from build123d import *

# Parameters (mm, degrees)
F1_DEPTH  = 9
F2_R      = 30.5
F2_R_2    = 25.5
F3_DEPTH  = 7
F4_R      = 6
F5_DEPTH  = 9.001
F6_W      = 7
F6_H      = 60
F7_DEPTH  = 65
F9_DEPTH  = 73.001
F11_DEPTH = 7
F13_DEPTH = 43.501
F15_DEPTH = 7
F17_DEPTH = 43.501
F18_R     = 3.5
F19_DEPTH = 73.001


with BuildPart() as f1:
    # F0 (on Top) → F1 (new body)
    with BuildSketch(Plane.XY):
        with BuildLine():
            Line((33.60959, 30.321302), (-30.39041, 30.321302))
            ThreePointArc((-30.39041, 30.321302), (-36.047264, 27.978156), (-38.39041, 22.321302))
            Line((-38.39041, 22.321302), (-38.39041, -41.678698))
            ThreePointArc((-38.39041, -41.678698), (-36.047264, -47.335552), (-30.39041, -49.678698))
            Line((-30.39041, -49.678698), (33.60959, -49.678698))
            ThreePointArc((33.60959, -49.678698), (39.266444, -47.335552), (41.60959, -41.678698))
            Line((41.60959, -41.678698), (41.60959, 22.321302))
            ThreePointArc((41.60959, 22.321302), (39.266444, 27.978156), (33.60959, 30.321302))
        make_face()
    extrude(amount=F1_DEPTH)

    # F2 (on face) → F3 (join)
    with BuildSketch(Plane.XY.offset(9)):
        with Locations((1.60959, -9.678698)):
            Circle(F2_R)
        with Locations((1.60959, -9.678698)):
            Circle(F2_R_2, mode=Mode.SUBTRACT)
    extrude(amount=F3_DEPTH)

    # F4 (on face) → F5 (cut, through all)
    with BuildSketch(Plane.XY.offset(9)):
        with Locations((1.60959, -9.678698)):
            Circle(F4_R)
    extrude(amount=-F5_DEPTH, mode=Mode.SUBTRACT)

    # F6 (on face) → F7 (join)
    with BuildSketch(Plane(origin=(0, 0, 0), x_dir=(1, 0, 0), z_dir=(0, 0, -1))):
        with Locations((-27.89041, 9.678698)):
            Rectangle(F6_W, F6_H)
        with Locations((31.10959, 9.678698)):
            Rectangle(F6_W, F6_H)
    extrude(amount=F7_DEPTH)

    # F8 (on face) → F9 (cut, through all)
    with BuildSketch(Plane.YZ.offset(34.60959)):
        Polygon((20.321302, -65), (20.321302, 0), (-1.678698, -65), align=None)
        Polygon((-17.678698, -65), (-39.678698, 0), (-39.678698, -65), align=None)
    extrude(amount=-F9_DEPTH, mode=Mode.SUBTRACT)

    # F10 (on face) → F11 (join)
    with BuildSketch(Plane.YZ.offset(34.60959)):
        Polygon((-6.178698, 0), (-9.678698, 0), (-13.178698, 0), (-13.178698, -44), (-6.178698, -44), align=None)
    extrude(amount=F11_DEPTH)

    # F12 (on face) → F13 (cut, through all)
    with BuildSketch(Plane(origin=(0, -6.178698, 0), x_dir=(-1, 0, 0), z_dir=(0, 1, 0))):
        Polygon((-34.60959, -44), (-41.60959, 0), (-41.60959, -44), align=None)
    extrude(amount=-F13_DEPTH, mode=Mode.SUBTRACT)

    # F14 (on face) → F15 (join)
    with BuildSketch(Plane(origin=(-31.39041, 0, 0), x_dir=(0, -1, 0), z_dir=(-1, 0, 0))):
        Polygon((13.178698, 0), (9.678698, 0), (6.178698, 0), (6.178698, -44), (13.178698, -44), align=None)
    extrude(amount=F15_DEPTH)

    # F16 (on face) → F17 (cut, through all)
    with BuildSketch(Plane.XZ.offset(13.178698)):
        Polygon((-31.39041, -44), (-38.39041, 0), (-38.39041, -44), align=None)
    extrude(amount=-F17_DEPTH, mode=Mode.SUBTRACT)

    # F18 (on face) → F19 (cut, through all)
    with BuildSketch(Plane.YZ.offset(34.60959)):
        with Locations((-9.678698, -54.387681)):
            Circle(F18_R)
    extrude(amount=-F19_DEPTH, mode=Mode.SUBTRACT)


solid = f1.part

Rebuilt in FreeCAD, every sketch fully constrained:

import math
import FreeCAD as App
import Part
import Sketcher

V = App.Vector

doc = App.newDocument("Part")
body = doc.addObject("PartDesign::Body", "Body")

sketch1 = body.newObject("Sketcher::SketchObject", "Sketch")
sketch1.AttachmentSupport = (doc.getObject("XY_Plane"), [""])
sketch1.MapMode = "FlatFace"
sketch1.addGeometry([
    Part.LineSegment(V(34, 30, 0), V(-30, 30, 0)),
    Part.ArcOfCircle(Part.Circle(V(-30, 22, 0), V(0, 0, 1), 8), math.radians(90), math.radians(180)),
    Part.LineSegment(V(-38, 22, 0), V(-38, -42, 0)),
    Part.ArcOfCircle(Part.Circle(V(-30, -42, 0), V(0, 0, 1), 8), math.radians(-180), math.radians(-90)),
    Part.LineSegment(V(-30, -50, 0), V(34, -50, 0)),
    Part.ArcOfCircle(Part.Circle(V(34, -42, 0), V(0, 0, 1), 8), math.radians(-90), math.radians(0)),
    Part.LineSegment(V(42, -42, 0), V(42, 22, 0)),
    Part.ArcOfCircle(Part.Circle(V(34, 22, 0), V(0, 0, 1), 8), math.radians(0), math.radians(90)),
], False)
sketch1.addConstraint([
    Sketcher.Constraint("Tangent", 0, 2, 1, 1),
    Sketcher.Constraint("Tangent", 1, 2, 2, 1),
    Sketcher.Constraint("Tangent", 2, 2, 3, 1),
    Sketcher.Constraint("Tangent", 3, 2, 4, 1),
    Sketcher.Constraint("Tangent", 4, 2, 5, 1),
    Sketcher.Constraint("Tangent", 5, 2, 6, 1),
    Sketcher.Constraint("Tangent", 6, 2, 7, 1),
    Sketcher.Constraint("Tangent", 7, 2, 0, 1),
    Sketcher.Constraint("Horizontal", 0),
    Sketcher.Constraint("Vertical", 2),
    Sketcher.Constraint("Horizontal", 4),
    Sketcher.Constraint("Vertical", 6),
    Sketcher.Constraint("Equal", 1, 3),
    Sketcher.Constraint("Equal", 3, 5),
    Sketcher.Constraint("Equal", 5, 7),
    Sketcher.Constraint("Equal", 4, 2),
    Sketcher.Constraint("Radius", 1, 8.000001),
    Sketcher.Constraint("DistanceX", 0, 2, 0, 1, 64.0),
    Sketcher.Constraint("DistanceY", -1, 1, 1, 3, 22.321301),
    Sketcher.Constraint("DistanceX", 1, 3, -1, 1, 30.390409),
])
pad1 = body.newObject("PartDesign::Pad", "Pad")
pad1.Profile = sketch1
pad1.Length = 9

sketch2 = body.newObject("Sketcher::SketchObject", "Sketch001")
sketch2.AttachmentSupport = (doc.getObject("XY_Plane"), [""])
sketch2.MapMode = "FlatFace"
sketch2.AttachmentOffset = App.Placement(V(0, 0, 9), App.Rotation())
sketch2.addGeometry([
    Part.Circle(V(2, -10, 0), V(0, 0, 1), 30),
    Part.Circle(V(2, -10, 0), V(0, 0, 1), 26),
], False)
sketch2.addConstraint([
    Sketcher.Constraint("Coincident", 1, 3, 0, 3),
    Sketcher.Constraint("Diameter", 0, 61.0),
    Sketcher.Constraint("Diameter", 1, 51.0),
    Sketcher.Constraint("DistanceY", 0, 3, -1, 1, 9.678698),
    Sketcher.Constraint("DistanceX", -1, 1, 0, 3, 1.60959),
])
pad2 = body.newObject("PartDesign::Pad", "Pad001")
pad2.Profile = sketch2
pad2.Length = 7

sketch3 = body.newObject("Sketcher::SketchObject", "Sketch002")
sketch3.AttachmentSupport = (doc.getObject("XY_Plane"), [""])
sketch3.MapMode = "FlatFace"
sketch3.AttachmentOffset = App.Placement(V(0, 0, 9), App.Rotation())
sketch3.addGeometry(Part.Circle(V(2, -10, 0), V(0, 0, 1), 6), False)
sketch3.addConstraint([
    Sketcher.Constraint("Diameter", 0, 12.0),
    Sketcher.Constraint("DistanceY", 0, 3, -1, 1, 9.678698),
    Sketcher.Constraint("DistanceX", -1, 1, 0, 3, 1.60959),
])
pocket1 = body.newObject("PartDesign::Pocket", "Pocket")
pocket1.Profile = sketch3
pocket1.Type = "ThroughAll"

sketch4 = body.newObject("Sketcher::SketchObject", "Sketch003")
sketch4.AttachmentSupport = (doc.getObject("XY_Plane"), [""])
sketch4.MapMode = "FlatFace"
sketch4.addGeometry([
    Part.LineSegment(V(-31, -40, 0), V(-31, 20, 0)),
    Part.LineSegment(V(-31, 20, 0), V(-24, 20, 0)),
    Part.LineSegment(V(-24, 20, 0), V(-24, -40, 0)),
    Part.LineSegment(V(-24, -40, 0), V(-31, -40, 0)),
    Part.LineSegment(V(28, -40, 0), V(28, 20, 0)),
    Part.LineSegment(V(28, 20, 0), V(35, 20, 0)),
    Part.LineSegment(V(35, 20, 0), V(35, -40, 0)),
    Part.LineSegment(V(35, -40, 0), V(28, -40, 0)),
], False)
sketch4.addConstraint([
    Sketcher.Constraint("Coincident", 0, 2, 1, 1),
    Sketcher.Constraint("Coincident", 1, 2, 2, 1),
    Sketcher.Constraint("Coincident", 2, 2, 3, 1),
    Sketcher.Constraint("Coincident", 3, 2, 0, 1),
    Sketcher.Constraint("Coincident", 4, 2, 5, 1),
    Sketcher.Constraint("Coincident", 5, 2, 6, 1),
    Sketcher.Constraint("Coincident", 6, 2, 7, 1),
    Sketcher.Constraint("Coincident", 7, 2, 4, 1),
    Sketcher.Constraint("Vertical", 0),
    Sketcher.Constraint("Horizontal", 1),
    Sketcher.Constraint("Vertical", 2),
    Sketcher.Constraint("Horizontal", 3),
    Sketcher.Constraint("Vertical", 4),
    Sketcher.Constraint("Horizontal", 5),
    Sketcher.Constraint("Vertical", 6),
    Sketcher.Constraint("Horizontal", 7),
    Sketcher.Constraint("Horizontal", 1, 2, 4, 2),
    Sketcher.Constraint("Horizontal", 3, 2, 6, 2),
    Sketcher.Constraint("Equal", 3, 5),
    Sketcher.Constraint("DistanceX", 1, 1, 1, 2, 7.0),
    Sketcher.Constraint("DistanceY", 0, 1, 0, 2, 60.0),
    Sketcher.Constraint("DistanceX", 1, 2, 4, 2, 52.0),
    Sketcher.Constraint("DistanceY", -1, 1, 0, 2, 20.321302),
    Sketcher.Constraint("DistanceX", 0, 2, -1, 1, 31.39041),
])
pad3 = body.newObject("PartDesign::Pad", "Pad002")
pad3.Profile = sketch4
pad3.Length = 65
pad3.Reversed = True

sketch5 = body.newObject("Sketcher::SketchObject", "Sketch004")
sketch5.AttachmentSupport = (doc.getObject("YZ_Plane"), [""])
sketch5.MapMode = "FlatFace"
sketch5.AttachmentOffset = App.Placement(V(0, 0, 34.60959), App.Rotation())
sketch5.addGeometry([
    Part.LineSegment(V(20, -65, 0), V(20, 0, 0)),
    Part.LineSegment(V(20, 0, 0), V(-2, -65, 0)),
    Part.LineSegment(V(-2, -65, 0), V(20, -65, 0)),
    Part.LineSegment(V(-18, -65, 0), V(-40, 0, 0)),
    Part.LineSegment(V(-40, 0, 0), V(-40, -65, 0)),
    Part.LineSegment(V(-40, -65, 0), V(-18, -65, 0)),
], False)
sketch5.addConstraint([
    Sketcher.Constraint("Coincident", 0, 2, 1, 1),
    Sketcher.Constraint("Coincident", 1, 2, 2, 1),
    Sketcher.Constraint("Coincident", 2, 2, 0, 1),
    Sketcher.Constraint("Coincident", 3, 2, 4, 1),
    Sketcher.Constraint("Coincident", 4, 2, 5, 1),
    Sketcher.Constraint("Coincident", 5, 2, 3, 1),
    Sketcher.Constraint("Vertical", 0),
    Sketcher.Constraint("Horizontal", 2),
    Sketcher.Constraint("Vertical", 4),
    Sketcher.Constraint("Horizontal", 5),
    Sketcher.Constraint("PointOnObject", 0, 2, -1),
    Sketcher.Constraint("PointOnObject", 3, 2, -1),
    Sketcher.Constraint("Horizontal", 2, 2, 4, 2),
    Sketcher.Constraint("Equal", 2, 5),
    Sketcher.Constraint("DistanceX", 2, 1, 2, 2, 22.0),
    Sketcher.Constraint("DistanceY", 0, 1, 0, 2, 65.0),
    Sketcher.Constraint("DistanceX", 3, 2, 0, 2, 60.0),
    Sketcher.Constraint("DistanceX", -1, 1, 0, 2, 20.321302),
])
pocket2 = body.newObject("PartDesign::Pocket", "Pocket001")
pocket2.Profile = sketch5
pocket2.Type = "ThroughAll"

sketch6 = body.newObject("Sketcher::SketchObject", "Sketch005")
sketch6.AttachmentSupport = (doc.getObject("YZ_Plane"), [""])
sketch6.MapMode = "FlatFace"
sketch6.AttachmentOffset = App.Placement(V(0, 0, 34.60959), App.Rotation())
sketch6.addGeometry([
    Part.LineSegment(V(-6, 0, 0), V(-13, 0, 0)),
    Part.LineSegment(V(-13, 0, 0), V(-13, -44, 0)),
    Part.LineSegment(V(-13, -44, 0), V(-6, -44, 0)),
    Part.LineSegment(V(-6, -44, 0), V(-6, 0, 0)),
], False)
sketch6.addConstraint([
    Sketcher.Constraint("Coincident", 0, 2, 1, 1),
    Sketcher.Constraint("Coincident", 1, 2, 2, 1),
    Sketcher.Constraint("Coincident", 2, 2, 3, 1),
    Sketcher.Constraint("Coincident", 3, 2, 0, 1),
    Sketcher.Constraint("Horizontal", 0),
    Sketcher.Constraint("Vertical", 1),
    Sketcher.Constraint("Horizontal", 2),
    Sketcher.Constraint("Vertical", 3),
    Sketcher.Constraint("PointOnObject", 0, 2, -1),
    Sketcher.Constraint("DistanceX", 0, 2, 0, 1, 7.0),
    Sketcher.Constraint("DistanceY", 1, 2, 1, 1, 44.0),
    Sketcher.Constraint("DistanceX", 0, 2, -1, 1, 13.178698),
])
pad4 = body.newObject("PartDesign::Pad", "Pad003")
pad4.Profile = sketch6
pad4.Length = 7

sketch7 = body.newObject("Sketcher::SketchObject", "Sketch006")
sketch7.AttachmentSupport = (doc.getObject("XZ_Plane"), [""])
sketch7.MapMode = "FlatFace"
sketch7.AttachmentOffset = App.Placement(V(0, 0, 6.178698), App.Rotation())
sketch7.addGeometry([
    Part.LineSegment(V(35, -44, 0), V(42, 0, 0)),
    Part.LineSegment(V(42, 0, 0), V(42, -44, 0)),
    Part.LineSegment(V(42, -44, 0), V(35, -44, 0)),
], False)
sketch7.addConstraint([
    Sketcher.Constraint("Coincident", 0, 2, 1, 1),
    Sketcher.Constraint("Coincident", 1, 2, 2, 1),
    Sketcher.Constraint("Coincident", 2, 2, 0, 1),
    Sketcher.Constraint("Vertical", 1),
    Sketcher.Constraint("Horizontal", 2),
    Sketcher.Constraint("PointOnObject", 0, 2, -1),
    Sketcher.Constraint("DistanceX", 2, 2, 2, 1, 7.0),
    Sketcher.Constraint("DistanceY", 1, 2, 1, 1, 44.0),
    Sketcher.Constraint("DistanceX", -1, 1, 0, 2, 41.60959),
])
pocket3 = body.newObject("PartDesign::Pocket", "Pocket002")
pocket3.Profile = sketch7
pocket3.Type = "ThroughAll"
pocket3.Reversed = True

sketch8 = body.newObject("Sketcher::SketchObject", "Sketch007")
sketch8.AttachmentSupport = (doc.getObject("YZ_Plane"), [""])
sketch8.MapMode = "FlatFace"
sketch8.AttachmentOffset = App.Placement(V(0, 0, -31.39041), App.Rotation())
sketch8.addGeometry([
    Part.LineSegment(V(-13, 0, 0), V(-6, 0, 0)),
    Part.LineSegment(V(-6, 0, 0), V(-6, -44, 0)),
    Part.LineSegment(V(-6, -44, 0), V(-13, -44, 0)),
    Part.LineSegment(V(-13, -44, 0), V(-13, 0, 0)),
], False)
sketch8.addConstraint([
    Sketcher.Constraint("Coincident", 0, 2, 1, 1),
    Sketcher.Constraint("Coincident", 1, 2, 2, 1),
    Sketcher.Constraint("Coincident", 2, 2, 3, 1),
    Sketcher.Constraint("Coincident", 3, 2, 0, 1),
    Sketcher.Constraint("Horizontal", 0),
    Sketcher.Constraint("Vertical", 1),
    Sketcher.Constraint("Horizontal", 2),
    Sketcher.Constraint("Vertical", 3),
    Sketcher.Constraint("PointOnObject", 0, 2, -1),
    Sketcher.Constraint("DistanceX", 0, 1, 0, 2, 7.0),
    Sketcher.Constraint("DistanceY", 1, 2, 1, 1, 44.0),
    Sketcher.Constraint("DistanceX", 2, 2, -1, 1, 13.178698),
])
pad5 = body.newObject("PartDesign::Pad", "Pad004")
pad5.Profile = sketch8
pad5.Length = 7
pad5.Reversed = True

sketch9 = body.newObject("Sketcher::SketchObject", "Sketch008")
sketch9.AttachmentSupport = (doc.getObject("XZ_Plane"), [""])
sketch9.MapMode = "FlatFace"
sketch9.AttachmentOffset = App.Placement(V(0, 0, 13.178698), App.Rotation())
sketch9.addGeometry([
    Part.LineSegment(V(-31, -44, 0), V(-38, 0, 0)),
    Part.LineSegment(V(-38, 0, 0), V(-38, -44, 0)),
    Part.LineSegment(V(-38, -44, 0), V(-31, -44, 0)),
], False)
sketch9.addConstraint([
    Sketcher.Constraint("Coincident", 0, 2, 1, 1),
    Sketcher.Constraint("Coincident", 1, 2, 2, 1),
    Sketcher.Constraint("Coincident", 2, 2, 0, 1),
    Sketcher.Constraint("Vertical", 1),
    Sketcher.Constraint("Horizontal", 2),
    Sketcher.Constraint("PointOnObject", 0, 2, -1),
    Sketcher.Constraint("DistanceX", 2, 1, 2, 2, 7.0),
    Sketcher.Constraint("DistanceY", 1, 2, 1, 1, 44.0),
    Sketcher.Constraint("DistanceX", 0, 2, -1, 1, 38.39041),
])
pocket4 = body.newObject("PartDesign::Pocket", "Pocket003")
pocket4.Profile = sketch9
pocket4.Type = "ThroughAll"

sketch10 = body.newObject("Sketcher::SketchObject", "Sketch009")
sketch10.AttachmentSupport = (doc.getObject("YZ_Plane"), [""])
sketch10.MapMode = "FlatFace"
sketch10.AttachmentOffset = App.Placement(V(0, 0, 34.60959), App.Rotation())
sketch10.addGeometry(Part.Circle(V(-9.7, -54.4, 0), V(0, 0, 1), 3.5), False)
sketch10.addConstraint([
    Sketcher.Constraint("Diameter", 0, 7.0),
    Sketcher.Constraint("DistanceX", 0, 3, -1, 1, 9.678698),
    Sketcher.Constraint("DistanceY", 0, 3, -1, 1, 54.387681),
])
pocket5 = body.newObject("PartDesign::Pocket", "Pocket004")
pocket5.Profile = sketch10
pocket5.Type = "ThroughAll"

doc.recompute()
